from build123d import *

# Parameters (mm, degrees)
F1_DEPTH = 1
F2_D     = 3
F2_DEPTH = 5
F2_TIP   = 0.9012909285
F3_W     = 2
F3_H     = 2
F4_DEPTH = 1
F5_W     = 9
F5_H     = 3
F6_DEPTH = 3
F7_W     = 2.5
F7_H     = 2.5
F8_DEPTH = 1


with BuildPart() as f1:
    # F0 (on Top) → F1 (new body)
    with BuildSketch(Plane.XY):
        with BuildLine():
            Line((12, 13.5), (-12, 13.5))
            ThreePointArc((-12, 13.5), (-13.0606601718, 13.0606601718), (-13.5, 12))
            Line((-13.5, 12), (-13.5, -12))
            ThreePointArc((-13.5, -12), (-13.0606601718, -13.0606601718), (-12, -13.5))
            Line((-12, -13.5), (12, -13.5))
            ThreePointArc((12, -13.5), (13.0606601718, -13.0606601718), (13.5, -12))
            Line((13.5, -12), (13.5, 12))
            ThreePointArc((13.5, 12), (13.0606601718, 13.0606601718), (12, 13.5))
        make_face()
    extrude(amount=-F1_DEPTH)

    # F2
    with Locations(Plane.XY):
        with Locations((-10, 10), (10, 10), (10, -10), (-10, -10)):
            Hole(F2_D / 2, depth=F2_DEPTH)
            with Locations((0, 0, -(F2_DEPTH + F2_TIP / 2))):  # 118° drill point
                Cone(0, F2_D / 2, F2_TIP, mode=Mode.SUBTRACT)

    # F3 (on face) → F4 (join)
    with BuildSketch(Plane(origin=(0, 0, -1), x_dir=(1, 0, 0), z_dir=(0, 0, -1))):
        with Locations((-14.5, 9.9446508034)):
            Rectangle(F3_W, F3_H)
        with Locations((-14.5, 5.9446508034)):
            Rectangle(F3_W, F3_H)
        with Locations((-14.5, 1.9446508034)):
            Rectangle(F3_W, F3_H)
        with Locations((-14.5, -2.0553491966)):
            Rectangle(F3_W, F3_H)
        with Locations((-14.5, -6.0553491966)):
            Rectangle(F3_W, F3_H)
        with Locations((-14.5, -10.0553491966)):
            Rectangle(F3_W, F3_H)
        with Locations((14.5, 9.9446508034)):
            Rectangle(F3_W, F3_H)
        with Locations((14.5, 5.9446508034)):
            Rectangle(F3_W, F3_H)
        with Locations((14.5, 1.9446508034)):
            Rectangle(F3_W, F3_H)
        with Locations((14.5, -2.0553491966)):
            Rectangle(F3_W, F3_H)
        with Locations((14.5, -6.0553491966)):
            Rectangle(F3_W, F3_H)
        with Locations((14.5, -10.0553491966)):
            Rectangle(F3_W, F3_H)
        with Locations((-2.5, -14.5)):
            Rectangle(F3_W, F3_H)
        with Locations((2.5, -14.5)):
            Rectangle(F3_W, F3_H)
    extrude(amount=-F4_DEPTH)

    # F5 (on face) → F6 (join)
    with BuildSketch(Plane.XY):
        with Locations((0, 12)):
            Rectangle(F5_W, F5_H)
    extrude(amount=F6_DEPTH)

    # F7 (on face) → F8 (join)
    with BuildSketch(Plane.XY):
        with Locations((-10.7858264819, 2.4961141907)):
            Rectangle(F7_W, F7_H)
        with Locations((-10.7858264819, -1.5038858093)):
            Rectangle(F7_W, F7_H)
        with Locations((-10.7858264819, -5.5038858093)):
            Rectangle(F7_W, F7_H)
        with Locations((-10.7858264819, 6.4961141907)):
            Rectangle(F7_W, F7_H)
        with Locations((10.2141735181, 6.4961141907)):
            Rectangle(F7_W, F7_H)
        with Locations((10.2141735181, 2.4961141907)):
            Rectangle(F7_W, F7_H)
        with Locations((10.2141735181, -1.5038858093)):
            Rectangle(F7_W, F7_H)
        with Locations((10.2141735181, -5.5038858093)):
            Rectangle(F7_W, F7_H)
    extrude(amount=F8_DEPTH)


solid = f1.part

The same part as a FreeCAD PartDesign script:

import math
import FreeCAD as App
import Part
import Sketcher

V = App.Vector

doc = App.newDocument("Part")
body = doc.addObject("PartDesign::Body", "Body")

# Sketch on XY plane
sketch1 = body.newObject("Sketcher::SketchObject", "Sketch")
sketch1.AttachmentSupport = (doc.getObject("XY_Plane"), [""])
sketch1.MapMode = "FlatFace"
sketch1.addGeometry(Part.LineSegment(V(12, 13.5, 0), V(-12, 13.5, 0)), False)
sketch1.addGeometry(Part.ArcOfCircle(Part.Circle(V(-12, 12, 0), V(0, 0, 1), 1.5), math.radians(90), math.radians(180)), False)
sketch1.addGeometry(Part.LineSegment(V(-13.5, 12, 0), V(-13.5, -12, 0)), False)
sketch1.addGeometry(Part.ArcOfCircle(Part.Circle(V(-12, -12, 0), V(0, 0, 1), 1.5), math.radians(180), math.radians(270)), False)
sketch1.addGeometry(Part.LineSegment(V(-12, -13.5, 0), V(12, -13.5, 0)), False)
sketch1.addGeometry(Part.ArcOfCircle(Part.Circle(V(12, -12, 0), V(0, 0, 1), 1.5), math.radians(-90), math.radians(0)), False)
sketch1.addGeometry(Part.LineSegment(V(13.5, -12, 0), V(13.5, 12, 0)), False)
sketch1.addGeometry(Part.ArcOfCircle(Part.Circle(V(12, 12, 0), V(0, 0, 1), 1.5), math.radians(0), math.radians(90)), False)
sketch1.addConstraint(Sketcher.Constraint("Tangent", 0, 2, 1, 1))
sketch1.addConstraint(Sketcher.Constraint("Tangent", 1, 2, 2, 1))
sketch1.addConstraint(Sketcher.Constraint("Tangent", 2, 2, 3, 1))
sketch1.addConstraint(Sketcher.Constraint("Tangent", 3, 2, 4, 1))
sketch1.addConstraint(Sketcher.Constraint("Tangent", 4, 2, 5, 1))
sketch1.addConstraint(Sketcher.Constraint("Tangent", 5, 2, 6, 1))
sketch1.addConstraint(Sketcher.Constraint("Tangent", 6, 2, 7, 1))
sketch1.addConstraint(Sketcher.Constraint("Tangent", 7, 2, 0, 1))
sketch1.addConstraint(Sketcher.Constraint("Horizontal", 0))
sketch1.addConstraint(Sketcher.Constraint("Vertical", 2))
sketch1.addConstraint(Sketcher.Constraint("Horizontal", 4))
sketch1.addConstraint(Sketcher.Constraint("Vertical", 6))
sketch1.addConstraint(Sketcher.Constraint("Equal", 1, 3))
sketch1.addConstraint(Sketcher.Constraint("Equal", 3, 5))
sketch1.addConstraint(Sketcher.Constraint("Equal", 5, 7))
sketch1.addConstraint(Sketcher.Constraint("Symmetric", 1, 3, 5, 3, -1, 1))
sketch1.addConstraint(Sketcher.Constraint("Equal", 4, 2))
sketch1.addConstraint(Sketcher.Constraint("Radius", 1, 1.5))
sketch1.addConstraint(Sketcher.Constraint("DistanceX", 0, 2, 0, 1, 24.0))
pad1 = body.newObject("PartDesign::Pad", "Pad")
pad1.Profile = sketch1
pad1.Length = 1
pad1.Reversed = True

# Sketch on XY plane
sketch2 = body.newObject("Sketcher::SketchObject", "Sketch001")
sketch2.AttachmentSupport = (doc.getObject("XY_Plane"), [""])
sketch2.MapMode = "FlatFace"
sketch2.addGeometry(Part.Circle(V(-10, 10, 0), V(0, 0, 1), 1.5), False)
sketch2.addGeometry(Part.Circle(V(10, 10, 0), V(0, 0, 1), 1.5), False)
sketch2.addGeometry(Part.Circle(V(10, -10, 0), V(0, 0, 1), 1.5), False)
sketch2.addGeometry(Part.Circle(V(-10, -10, 0), V(0, 0, 1), 1.5), False)
sketch2.addConstraint(Sketcher.Constraint("Equal", 0, 1))
sketch2.addConstraint(Sketcher.Constraint("Equal", 1, 2))
sketch2.addConstraint(Sketcher.Constraint("Equal", 2, 3))
sketch2.addConstraint(Sketcher.Constraint("Symmetric", 0, 3, 2, 3, -1, 1))
sketch2.addConstraint(Sketcher.Constraint("Symmetric", 1, 3, 3, 3, -1, 1))
sketch2.addConstraint(Sketcher.Constraint("Symmetric", 0, 3, 1, 3, -2))
sketch2.addConstraint(Sketcher.Constraint("Diameter", 0, 3.0))
sketch2.addConstraint(Sketcher.Constraint("DistanceX", 0, 3, -1, 1, 10.0))
sketch2.addConstraint(Sketcher.Constraint("DistanceY", -1, 1, 0, 3, 10.0))
doc.recompute()
hole = body.newObject("PartDesign::Hole", "Hole")
hole.Profile = sketch2
hole.ThreadType = "None"
hole.Diameter = 3
hole.DepthType = "Dimension"
hole.Depth = 5
hole.DrillPoint = "Angled"
hole.DrillPointAngle = 118

# Sketch on XY plane
sketch3 = body.newObject("Sketcher::SketchObject", "Sketch002")
sketch3.AttachmentSupport = (doc.getObject("XY_Plane"), [""])
sketch3.MapMode = "FlatFace"
sketch3.AttachmentOffset = App.Placement(V(0, 0, -1), App.Rotation())
sketch3.addGeometry(Part.LineSegment(V(-15.5, -10.9, 0), V(-15.5, -8.9, 0)), False)
sketch3.addGeometry(Part.LineSegment(V(-15.5, -8.9, 0), V(-13.5, -8.9, 0)), False)
sketch3.addGeometry(Part.LineSegment(V(-13.5, -8.9, 0), V(-13.5, -10.9, 0)), False)
sketch3.addGeometry(Part.LineSegment(V(-13.5, -10.9, 0), V(-15.5, -10.9, 0)), False)
sketch3.addGeometry(Part.LineSegment(V(-15.5, -6.9, 0), V(-15.5, -4.9, 0)), False)
sketch3.addGeometry(Part.LineSegment(V(-15.5, -4.9, 0), V(-13.5, -4.9, 0)), False)
sketch3.addGeometry(Part.LineSegment(V(-13.5, -4.9, 0), V(-13.5, -6.9, 0)), False)
sketch3.addGeometry(Part.LineSegment(V(-13.5, -6.9, 0), V(-15.5, -6.9, 0)), False)
sketch3.addGeometry(Part.LineSegment(V(-15.5, -2.9, 0), V(-15.5, -0.9, 0)), False)
sketch3.addGeometry(Part.LineSegment(V(-15.5, -0.9, 0), V(-13.5, -0.9, 0)), False)
sketch3.addGeometry(Part.LineSegment(V(-13.5, -0.9, 0), V(-13.5, -2.9, 0)), False)
sketch3.addGeometry(Part.LineSegment(V(-13.5, -2.9, 0), V(-15.5, -2.9, 0)), False)
sketch3.addGeometry(Part.LineSegment(V(-15.5, 1.1, 0), V(-15.5, 3.1, 0)), False)
sketch3.addGeometry(Part.LineSegment(V(-15.5, 3.1, 0), V(-13.5, 3.1, 0)), False)
sketch3.addGeometry(Part.LineSegment(V(-13.5, 3.1, 0), V(-13.5, 1.1, 0)), False)
sketch3.addGeometry(Part.LineSegment(V(-13.5, 1.1, 0), V(-15.5, 1.1, 0)), False)
sketch3.addGeometry(Part.LineSegment(V(-15.5, 5.1, 0), V(-15.5, 7.1, 0)), False)
sketch3.addGeometry(Part.LineSegment(V(-15.5, 7.1, 0), V(-13.5, 7.1, 0)), False)
sketch3.addGeometry(Part.LineSegment(V(-13.5, 7.1, 0), V(-13.5, 5.1, 0)), False)
sketch3.addGeometry(Part.LineSegment(V(-13.5, 5.1, 0), V(-15.5, 5.1, 0)), False)
sketch3.addGeometry(Part.LineSegment(V(-15.5, 9.1, 0), V(-15.5, 11.1, 0)), False)
sketch3.addGeometry(Part.LineSegment(V(-15.5, 11.1, 0), V(-13.5, 11.1, 0)), False)
sketch3.addGeometry(Part.LineSegment(V(-13.5, 11.1, 0), V(-13.5, 9.1, 0)), False)
sketch3.addGeometry(Part.LineSegment(V(-13.5, 9.1, 0), V(-15.5, 9.1, 0)), False)
sketch3.addGeometry(Part.LineSegment(V(13.5, -10.9, 0), V(13.5, -8.9, 0)), False)
sketch3.addGeometry(Part.LineSegment(V(13.5, -8.9, 0), V(15.5, -8.9, 0)), False)
sketch3.addGeometry(Part.LineSegment(V(15.5, -8.9, 0), V(15.5, -10.9, 0)), False)
sketch3.addGeometry(Part.LineSegment(V(15.5, -10.9, 0), V(13.5, -10.9, 0)), False)
sketch3.addGeometry(Part.LineSegment(V(13.5, -6.9, 0), V(13.5, -4.9, 0)), False)
sketch3.addGeometry(Part.LineSegment(V(13.5, -4.9, 0), V(15.5, -4.9, 0)), False)
sketch3.addGeometry(Part.LineSegment(V(15.5, -4.9, 0), V(15.5, -6.9, 0)), False)
sketch3.addGeometry(Part.LineSegment(V(15.5, -6.9, 0), V(13.5, -6.9, 0)), False)
sketch3.addGeometry(Part.LineSegment(V(13.5, -2.9, 0), V(13.5, -0.9, 0)), False)
sketch3.addGeometry(Part.LineSegment(V(13.5, -0.9, 0), V(15.5, -0.9, 0)), False)
sketch3.addGeometry(Part.LineSegment(V(15.5, -0.9, 0), V(15.5, -2.9, 0)), False)
sketch3.addGeometry(Part.LineSegment(V(15.5, -2.9, 0), V(13.5, -2.9, 0)), False)
sketch3.addGeometry(Part.LineSegment(V(13.5, 1.1, 0), V(13.5, 3.1, 0)), False)
sketch3.addGeometry(Part.LineSegment(V(13.5, 3.1, 0), V(15.5, 3.1, 0)), False)
sketch3.addGeometry(Part.LineSegment(V(15.5, 3.1, 0), V(15.5, 1.1, 0)), False)
sketch3.addGeometry(Part.LineSegment(V(15.5, 1.1, 0), V(13.5, 1.1, 0)), False)
sketch3.addGeometry(Part.LineSegment(V(13.5, 5.1, 0), V(13.5, 7.1, 0)), False)
sketch3.addGeometry(Part.LineSegment(V(13.5, 7.1, 0), V(15.5, 7.1, 0)), False)
sketch3.addGeometry(Part.LineSegment(V(15.5, 7.1, 0), V(15.5, 5.1, 0)), False)
sketch3.addGeometry(Part.LineSegment(V(15.5, 5.1, 0), V(13.5, 5.1, 0)), False)
sketch3.addGeometry(Part.LineSegment(V(13.5, 9.1, 0), V(13.5, 11.1, 0)), False)
sketch3.addGeometry(Part.LineSegment(V(13.5, 11.1, 0), V(15.5, 11.1, 0)), False)
sketch3.addGeometry(Part.LineSegment(V(15.5, 11.1, 0), V(15.5, 9.1, 0)), False)
sketch3.addGeometry(Part.LineSegment(V(15.5, 9.1, 0), V(13.5, 9.1, 0)), False)
sketch3.addGeometry(Part.LineSegment(V(-3.5, 13.5, 0), V(-3.5, 15.5, 0)), False)
sketch3.addGeometry(Part.LineSegment(V(-3.5, 15.5, 0), V(-1.5, 15.5, 0)), False)
sketch3.addGeometry(Part.LineSegment(V(-1.5, 15.5, 0), V(-1.5, 13.5, 0)), False)
sketch3.addGeometry(Part.LineSegment(V(-1.5, 13.5, 0), V(-3.5, 13.5, 0)), False)
sketch3.addGeometry(Part.LineSegment(V(1.5, 13.5, 0), V(1.5, 15.5, 0)), False)
sketch3.addGeometry(Part.LineSegment(V(1.5, 15.5, 0), V(3.5, 15.5, 0)), False)
sketch3.addGeometry(Part.LineSegment(V(3.5, 15.5, 0), V(3.5, 13.5, 0)), False)
sketch3.addGeometry(Part.LineSegment(V(3.5, 13.5, 0), V(1.5, 13.5, 0)), False)
sketch3.addConstraint(Sketcher.Constraint("Coincident", 0, 2, 1, 1))
sketch3.addConstraint(Sketcher.Constraint("Coincident", 1, 2, 2, 1))
sketch3.addConstraint(Sketcher.Constraint("Coincident", 2, 2, 3, 1))
sketch3.addConstraint(Sketcher.Constraint("Coincident", 3, 2, 0, 1))
sketch3.addConstraint(Sketcher.Constraint("Coincident", 4, 2, 5, 1))
sketch3.addConstraint(Sketcher.Constraint("Coincident", 5, 2, 6, 1))
sketch3.addConstraint(Sketcher.Constraint("Coincident", 6, 2, 7, 1))
sketch3.addConstraint(Sketcher.Constraint("Coincident", 7, 2, 4, 1))
sketch3.addConstraint(Sketcher.Constraint("Coincident", 8, 2, 9, 1))
sketch3.addConstraint(Sketcher.Constraint("Coincident", 9, 2, 10, 1))
sketch3.addConstraint(Sketcher.Constraint("Coincident", 10, 2, 11, 1))
sketch3.addConstraint(Sketcher.Constraint("Coincident", 11, 2, 8, 1))
sketch3.addConstraint(Sketcher.Constraint("Coincident", 12, 2, 13, 1))
sketch3.addConstraint(Sketcher.Constraint("Coincident", 13, 2, 14, 1))
sketch3.addConstraint(Sketcher.Constraint("Coincident", 14, 2, 15, 1))
sketch3.addConstraint(Sketcher.Constraint("Coincident", 15, 2, 12, 1))
sketch3.addConstraint(Sketcher.Constraint("Coincident", 16, 2, 17, 1))
sketch3.addConstraint(Sketcher.Constraint("Coincident", 17, 2, 18, 1))
sketch3.addConstraint(Sketcher.Constraint("Coincident", 18, 2, 19, 1))
sketch3.addConstraint(Sketcher.Constraint("Coincident", 19, 2, 16, 1))
sketch3.addConstraint(Sketcher.Constraint("Coincident", 20, 2, 21, 1))
sketch3.addConstraint(Sketcher.Constraint("Coincident", 21, 2, 22, 1))
sketch3.addConstraint(Sketcher.Constraint("Coincident", 22, 2, 23, 1))
sketch3.addConstraint(Sketcher.Constraint("Coincident", 23, 2, 20, 1))
sketch3.addConstraint(Sketcher.Constraint("Coincident", 24, 2, 25, 1))
sketch3.addConstraint(Sketcher.Constraint("Coincident", 25, 2, 26, 1))
sketch3.addConstraint(Sketcher.Constraint("Coincident", 26, 2, 27, 1))
sketch3.addConstraint(Sketcher.Constraint("Coincident", 27, 2, 24, 1))
sketch3.addConstraint(Sketcher.Constraint("Coincident", 28, 2, 29, 1))
sketch3.addConstraint(Sketcher.Constraint("Coincident", 29, 2, 30, 1))
sketch3.addConstraint(Sketcher.Constraint("Coincident", 30, 2, 31, 1))
sketch3.addConstraint(Sketcher.Constraint("Coincident", 31, 2, 28, 1))
sketch3.addConstraint(Sketcher.Constraint("Coincident", 32, 2, 33, 1))
sketch3.addConstraint(Sketcher.Constraint("Coincident", 33, 2, 34, 1))
sketch3.addConstraint(Sketcher.Constraint("Coincident", 34, 2, 35, 1))
sketch3.addConstraint(Sketcher.Constraint("Coincident", 35, 2, 32, 1))
sketch3.addConstraint(Sketcher.Constraint("Coincident", 36, 2, 37, 1))
sketch3.addConstraint(Sketcher.Constraint("Coincident", 37, 2, 38, 1))
sketch3.addConstraint(Sketcher.Constraint("Coincident", 38, 2, 39, 1))
sketch3.addConstraint(Sketcher.Constraint("Coincident", 39, 2, 36, 1))
sketch3.addConstraint(Sketcher.Constraint("Coincident", 40, 2, 41, 1))
sketch3.addConstraint(Sketcher.Constraint("Coincident", 41, 2, 42, 1))
sketch3.addConstraint(Sketcher.Constraint("Coincident", 42, 2, 43, 1))
sketch3.addConstraint(Sketcher.Constraint("Coincident", 43, 2, 40, 1))
sketch3.addConstraint(Sketcher.Constraint("Coincident", 44, 2, 45, 1))
sketch3.addConstraint(Sketcher.Constraint("Coincident", 45, 2, 46, 1))
sketch3.addConstraint(Sketcher.Constraint("Coincident", 46, 2, 47, 1))
sketch3.addConstraint(Sketcher.Constraint("Coincident", 47, 2, 44, 1))
sketch3.addConstraint(Sketcher.Constraint("Coincident", 48, 2, 49, 1))
sketch3.addConstraint(Sketcher.Constraint("Coincident", 49, 2, 50, 1))
sketch3.addConstraint(Sketcher.Constraint("Coincident", 50, 2, 51, 1))
sketch3.addConstraint(Sketcher.Constraint("Coincident", 51, 2, 48, 1))
sketch3.addConstraint(Sketcher.Constraint("Coincident", 52, 2, 53, 1))
sketch3.addConstraint(Sketcher.Constraint("Coincident", 53, 2, 54, 1))
sketch3.addConstraint(Sketcher.Constraint("Coincident", 54, 2, 55, 1))
sketch3.addConstraint(Sketcher.Constraint("Coincident", 55, 2, 52, 1))
sketch3.addConstraint(Sketcher.Constraint("Vertical", 0))
sketch3.addConstraint(Sketcher.Constraint("Horizontal", 1))
sketch3.addConstraint(Sketcher.Constraint("Vertical", 2))
sketch3.addConstraint(Sketcher.Constraint("Horizontal", 3))
sketch3.addConstraint(Sketcher.Constraint("Vertical", 4))
sketch3.addConstraint(Sketcher.Constraint("Horizontal", 5))
sketch3.addConstraint(Sketcher.Constraint("Vertical", 6))
sketch3.addConstraint(Sketcher.Constraint("Horizontal", 7))
sketch3.addConstraint(Sketcher.Constraint("Vertical", 8))
sketch3.addConstraint(Sketcher.Constraint("Horizontal", 9))
sketch3.addConstraint(Sketcher.Constraint("Vertical", 10))
sketch3.addConstraint(Sketcher.Constraint("Horizontal", 11))
sketch3.addConstraint(Sketcher.Constraint("Vertical", 12))
sketch3.addConstraint(Sketcher.Constraint("Horizontal", 13))
sketch3.addConstraint(Sketcher.Constraint("Vertical", 14))
sketch3.addConstraint(Sketcher.Constraint("Horizontal", 15))
sketch3.addConstraint(Sketcher.Constraint("Vertical", 16))
sketch3.addConstraint(Sketcher.Constraint("Horizontal", 17))
sketch3.addConstraint(Sketcher.Constraint("Vertical", 18))
sketch3.addConstraint(Sketcher.Constraint("Horizontal", 19))
sketch3.addConstraint(Sketcher.Constraint("Vertical", 20))
sketch3.addConstraint(Sketcher.Constraint("Horizontal", 21))
sketch3.addConstraint(Sketcher.Constraint("Vertical", 22))
sketch3.addConstraint(Sketcher.Constraint("Horizontal", 23))
sketch3.addConstraint(Sketcher.Constraint("Vertical", 24))
sketch3.addConstraint(Sketcher.Constraint("Horizontal", 25))
sketch3.addConstraint(Sketcher.Constraint("Vertical", 26))
sketch3.addConstraint(Sketcher.Constraint("Horizontal", 27))
sketch3.addConstraint(Sketcher.Constraint("Vertical", 28))
sketch3.addConstraint(Sketcher.Constraint("Horizontal", 29))
sketch3.addConstraint(Sketcher.Constraint("Vertical", 30))
sketch3.addConstraint(Sketcher.Constraint("Horizontal", 31))
sketch3.addConstraint(Sketcher.Constraint("Vertical", 32))
sketch3.addConstraint(Sketcher.Constraint("Horizontal", 33))
sketch3.addConstraint(Sketcher.Constraint("Vertical", 34))
sketch3.addConstraint(Sketcher.Constraint("Horizontal", 35))
sketch3.addConstraint(Sketcher.Constraint("Vertical", 36))
sketch3.addConstraint(Sketcher.Constraint("Horizontal", 37))
sketch3.addConstraint(Sketcher.Constraint("Vertical", 38))
sketch3.addConstraint(Sketcher.Constraint("Horizontal", 39))
sketch3.addConstraint(Sketcher.Constraint("Vertical", 40))
sketch3.addConstraint(Sketcher.Constraint("Horizontal", 41))
sketch3.addConstraint(Sketcher.Constraint("Vertical", 42))
sketch3.addConstraint(Sketcher.Constraint("Horizontal", 43))
sketch3.addConstraint(Sketcher.Constraint("Vertical", 44))
sketch3.addConstraint(Sketcher.Constraint("Horizontal", 45))
sketch3.addConstraint(Sketcher.Constraint("Vertical", 46))
sketch3.addConstraint(Sketcher.Constraint("Horizontal", 47))
sketch3.addConstraint(Sketcher.Constraint("Vertical", 48))
sketch3.addConstraint(Sketcher.Constraint("Horizontal", 49))
sketch3.addConstraint(Sketcher.Constraint("Vertical", 50))
sketch3.addConstraint(Sketcher.Constraint("Horizontal", 51))
sketch3.addConstraint(Sketcher.Constraint("Vertical", 52))
sketch3.addConstraint(Sketcher.Constraint("Horizontal", 53))
sketch3.addConstraint(Sketcher.Constraint("Vertical", 54))
sketch3.addConstraint(Sketcher.Constraint("Horizontal", 55))
sketch3.addConstraint(Sketcher.Constraint("Symmetric", 1, 2, 24, 2, -2))
sketch3.addConstraint(Sketcher.Constraint("Symmetric", 3, 2, 26, 2, -2))
sketch3.addConstraint(Sketcher.Constraint("Symmetric", 5, 2, 28, 2, -2))
sketch3.addConstraint(Sketcher.Constraint("Symmetric", 7, 2, 30, 2, -2))
sketch3.addConstraint(Sketcher.Constraint("Symmetric", 9, 2, 32, 2, -2))
sketch3.addConstraint(Sketcher.Constraint("Symmetric", 11, 2, 34, 2, -2))
sketch3.addConstraint(Sketcher.Constraint("Symmetric", 13, 2, 36, 2, -2))
sketch3.addConstraint(Sketcher.Constraint("Symmetric", 15, 2, 38, 2, -2))
sketch3.addConstraint(Sketcher.Constraint("Symmetric", 17, 2, 40, 2, -2))
sketch3.addConstraint(Sketcher.Constraint("Symmetric", 19, 2, 42, 2, -2))
sketch3.addConstraint(Sketcher.Constraint("Symmetric", 21, 2, 44, 2, -2))
sketch3.addConstraint(Sketcher.Constraint("Symmetric", 23, 2, 46, 2, -2))
sketch3.addConstraint(Sketcher.Constraint("Symmetric", 49, 2, 52, 2, -2))
sketch3.addConstraint(Sketcher.Constraint("Symmetric", 51, 2, 54, 2, -2))
sketch3.addConstraint(Sketcher.Constraint("Vertical", 3, 2, 4, 2))
sketch3.addConstraint(Sketcher.Constraint("Vertical", 2, 2, 5, 2))
sketch3.addConstraint(Sketcher.Constraint("Vertical", 7, 2, 8, 2))
sketch3.addConstraint(Sketcher.Constraint("Vertical", 6, 2, 9, 2))
sketch3.addConstraint(Sketcher.Constraint("Vertical", 11, 2, 12, 2))
sketch3.addConstraint(Sketcher.Constraint("Vertical", 10, 2, 13, 2))
sketch3.addConstraint(Sketcher.Constraint("Vertical", 15, 2, 16, 2))
sketch3.addConstraint(Sketcher.Constraint("Vertical", 14, 2, 17, 2))
sketch3.addConstraint(Sketcher.Constraint("Vertical", 19, 2, 20, 2))
sketch3.addConstraint(Sketcher.Constraint("Vertical", 18, 2, 21, 2))
sketch3.addConstraint(Sketcher.Constraint("Equal", 47, 49))
sketch3.addConstraint(Sketcher.Constraint("Equal", 55, 0))
sketch3.addConstraint(Sketcher.Constraint("Equal", 2, 4))
sketch3.addConstraint(Sketcher.Constraint("Equal", 6, 8))
sketch3.addConstraint(Sketcher.Constraint("Equal", 10, 12))
sketch3.addConstraint(Sketcher.Constraint("Equal", 14, 16))
sketch3.addConstraint(Sketcher.Constraint("Equal", 18, 20))
sketch3.addConstraint(Sketcher.Constraint("Equal", 46, 48))
sketch3.addConstraint(Sketcher.Constraint("DistanceX", 1, 1, 1, 2, 2.0))
sketch3.addConstraint(Sketcher.Constraint("DistanceY", 0, 2, 4, 2, 4.0))
sketch3.addConstraint(Sketcher.Constraint("DistanceY", 4, 2, 8, 2, 4.0))
sketch3.addConstraint(Sketcher.Constraint("DistanceY", 8, 2, 12, 2, 4.0))
sketch3.addConstraint(Sketcher.Constraint("DistanceY", 12, 2, 16, 2, 4.0))
sketch3.addConstraint(Sketcher.Constraint("DistanceY", 16, 2, 20, 2, 4.0))
sketch3.addConstraint(Sketcher.Constraint("DistanceX", 1, 2, 24, 2, 27.0))
sketch3.addConstraint(Sketcher.Constraint("DistanceX", 21, 2, 48, 2, 10.0))
sketch3.addConstraint(Sketcher.Constraint("DistanceY", -1, 1, 48, 2, 15.5))
sketch3.addConstraint(Sketcher.Constraint("DistanceY", 0, 2, -1, 1, 8.944651))
pad2 = body.newObject("PartDesign::Pad", "Pad001")
pad2.Profile = sketch3
pad2.Length = 1

# Sketch on XY plane
sketch4 = body.newObject("Sketcher::SketchObject", "Sketch003")
sketch4.AttachmentSupport = (doc.getObject("XY_Plane"), [""])
sketch4.MapMode = "FlatFace"
sketch4.addGeometry(Part.LineSegment(V(-4.5, 13.5, 0), V(-4.5, 10.5, 0)), False)
sketch4.addGeometry(Part.LineSegment(V(-4.5, 10.5, 0), V(4.5, 10.5, 0)), False)
sketch4.addGeometry(Part.LineSegment(V(4.5, 10.5, 0), V(4.5, 13.5, 0)), False)
sketch4.addGeometry(Part.LineSegment(V(4.5, 13.5, 0), V(-4.5, 13.5, 0)), False)
sketch4.addConstraint(Sketcher.Constraint("Coincident", 0, 2, 1, 1))
sketch4.addConstraint(Sketcher.Constraint("Coincident", 1, 2, 2, 1))
sketch4.addConstraint(Sketcher.Constraint("Coincident", 2, 2, 3, 1))
sketch4.addConstraint(Sketcher.Constraint("Coincident", 3, 2, 0, 1))
sketch4.addConstraint(Sketcher.Constraint("Vertical", 0))
sketch4.addConstraint(Sketcher.Constraint("Horizontal", 1))
sketch4.addConstraint(Sketcher.Constraint("Vertical", 2))
sketch4.addConstraint(Sketcher.Constraint("Horizontal", 3))
sketch4.addConstraint(Sketcher.Constraint("DistanceX", 1, 1, 1, 2, 9.0))
sketch4.addConstraint(Sketcher.Constraint("DistanceY", 0, 2, 0, 1, 3.0))
sketch4.addConstraint(Sketcher.Constraint("DistanceX", 0, 2, -1, 1, 4.5))
sketch4.addConstraint(Sketcher.Constraint("DistanceY", -1, 1, 0, 2, 10.5))
pad3 = body.newObject("PartDesign::Pad", "Pad002")
pad3.Profile = sketch4
pad3.Length = 3

# Sketch on XY plane
sketch5 = body.newObject("Sketcher::SketchObject", "Sketch004")
sketch5.AttachmentSupport = (doc.getObject("XY_Plane"), [""])
sketch5.MapMode = "FlatFace"
sketch5.addGeometry(Part.LineSegment(V(-12, 3.7, 0), V(-12, 1.2, 0)), False)
sketch5.addGeometry(Part.LineSegment(V(-12, 1.2, 0), V(-9.5, 1.2, 0)), False)
sketch5.addGeometry(Part.LineSegment(V(-9.5, 1.2, 0), V(-9.5, 3.7, 0)), False)
sketch5.addGeometry(Part.LineSegment(V(-9.5, 3.7, 0), V(-12, 3.7, 0)), False)
sketch5.addGeometry(Part.LineSegment(V(-12, -0.3, 0), V(-12, -2.8, 0)), False)
sketch5.addGeometry(Part.LineSegment(V(-12, -2.8, 0), V(-9.5, -2.8, 0)), False)
sketch5.addGeometry(Part.LineSegment(V(-9.5, -2.8, 0), V(-9.5, -0.3, 0)), False)
sketch5.addGeometry(Part.LineSegment(V(-9.5, -0.3, 0), V(-12, -0.3, 0)), False)
sketch5.addGeometry(Part.LineSegment(V(-12, -4.3, 0), V(-12, -6.8, 0)), False)
sketch5.addGeometry(Part.LineSegment(V(-12, -6.8, 0), V(-9.5, -6.8, 0)), False)
sketch5.addGeometry(Part.LineSegment(V(-9.5, -6.8, 0), V(-9.5, -4.3, 0)), False)
sketch5.addGeometry(Part.LineSegment(V(-9.5, -4.3, 0), V(-12, -4.3, 0)), False)
sketch5.addGeometry(Part.LineSegment(V(-12, 7.7, 0), V(-12, 5.2, 0)), False)
sketch5.addGeometry(Part.LineSegment(V(-12, 5.2, 0), V(-9.5, 5.2, 0)), False)
sketch5.addGeometry(Part.LineSegment(V(-9.5, 5.2, 0), V(-9.5, 7.7, 0)), False)
sketch5.addGeometry(Part.LineSegment(V(-9.5, 7.7, 0), V(-12, 7.7, 0)), False)
sketch5.addGeometry(Part.LineSegment(V(9, 7.7, 0), V(9, 5.2, 0)), False)
sketch5.addGeometry(Part.LineSegment(V(9, 5.2, 0), V(11.5, 5.2, 0)), False)
sketch5.addGeometry(Part.LineSegment(V(11.5, 5.2, 0), V(11.5, 7.7, 0)), False)
sketch5.addGeometry(Part.LineSegment(V(11.5, 7.7, 0), V(9, 7.7, 0)), False)
sketch5.addGeometry(Part.LineSegment(V(9, 3.7, 0), V(9, 1.2, 0)), False)
sketch5.addGeometry(Part.LineSegment(V(9, 1.2, 0), V(11.5, 1.2, 0)), False)
sketch5.addGeometry(Part.LineSegment(V(11.5, 1.2, 0), V(11.5, 3.7, 0)), False)
sketch5.addGeometry(Part.LineSegment(V(11.5, 3.7, 0), V(9, 3.7, 0)), False)
sketch5.addGeometry(Part.LineSegment(V(9, -0.3, 0), V(9, -2.8, 0)), False)
sketch5.addGeometry(Part.LineSegment(V(9, -2.8, 0), V(11.5, -2.8, 0)), False)
sketch5.addGeometry(Part.LineSegment(V(11.5, -2.8, 0), V(11.5, -0.3, 0)), False)
sketch5.addGeometry(Part.LineSegment(V(11.5, -0.3, 0), V(9, -0.3, 0)), False)
sketch5.addGeometry(Part.LineSegment(V(9, -4.3, 0), V(9, -6.8, 0)), False)
sketch5.addGeometry(Part.LineSegment(V(9, -6.8, 0), V(11.5, -6.8, 0)), False)
sketch5.addGeometry(Part.LineSegment(V(11.5, -6.8, 0), V(11.5, -4.3, 0)), False)
sketch5.addGeometry(Part.LineSegment(V(11.5, -4.3, 0), V(9, -4.3, 0)), False)
sketch5.addConstraint(Sketcher.Constraint("Coincident", 0, 2, 1, 1))
sketch5.addConstraint(Sketcher.Constraint("Coincident", 1, 2, 2, 1))
sketch5.addConstraint(Sketcher.Constraint("Coincident", 2, 2, 3, 1))
sketch5.addConstraint(Sketcher.Constraint("Coincident", 3, 2, 0, 1))
sketch5.addConstraint(Sketcher.Constraint("Coincident", 4, 2, 5, 1))
sketch5.addConstraint(Sketcher.Constraint("Coincident", 5, 2, 6, 1))
sketch5.addConstraint(Sketcher.Constraint("Coincident", 6, 2, 7, 1))
sketch5.addConstraint(Sketcher.Constraint("Coincident", 7, 2, 4, 1))
sketch5.addConstraint(Sketcher.Constraint("Coincident", 8, 2, 9, 1))
sketch5.addConstraint(Sketcher.Constraint("Coincident", 9, 2, 10, 1))
sketch5.addConstraint(Sketcher.Constraint("Coincident", 10, 2, 11, 1))
sketch5.addConstraint(Sketcher.Constraint("Coincident", 11, 2, 8, 1))
sketch5.addConstraint(Sketcher.Constraint("Coincident", 12, 2, 13, 1))
sketch5.addConstraint(Sketcher.Constraint("Coincident", 13, 2, 14, 1))
sketch5.addConstraint(Sketcher.Constraint("Coincident", 14, 2, 15, 1))
sketch5.addConstraint(Sketcher.Constraint("Coincident", 15, 2, 12, 1))
sketch5.addConstraint(Sketcher.Constraint("Coincident", 16, 2, 17, 1))
sketch5.addConstraint(Sketcher.Constraint("Coincident", 17, 2, 18, 1))
sketch5.addConstraint(Sketcher.Constraint("Coincident", 18, 2, 19, 1))
sketch5.addConstraint(Sketcher.Constraint("Coincident", 19, 2, 16, 1))
sketch5.addConstraint(Sketcher.Constraint("Coincident", 20, 2, 21, 1))
sketch5.addConstraint(Sketcher.Constraint("Coincident", 21, 2, 22, 1))
sketch5.addConstraint(Sketcher.Constraint("Coincident", 22, 2, 23, 1))
sketch5.addConstraint(Sketcher.Constraint("Coincident", 23, 2, 20, 1))
sketch5.addConstraint(Sketcher.Constraint("Coincident", 24, 2, 25, 1))
sketch5.addConstraint(Sketcher.Constraint("Coincident", 25, 2, 26, 1))
sketch5.addConstraint(Sketcher.Constraint("Coincident", 26, 2, 27, 1))
sketch5.addConstraint(Sketcher.Constraint("Coincident", 27, 2, 24, 1))
sketch5.addConstraint(Sketcher.Constraint("Coincident", 28, 2, 29, 1))
sketch5.addConstraint(Sketcher.Constraint("Coincident", 29, 2, 30, 1))
sketch5.addConstraint(Sketcher.Constraint("Coincident", 30, 2, 31, 1))
sketch5.addConstraint(Sketcher.Constraint("Coincident", 31, 2, 28, 1))
sketch5.addConstraint(Sketcher.Constraint("Vertical", 0))
sketch5.addConstraint(Sketcher.Constraint("Horizontal", 1))
sketch5.addConstraint(Sketcher.Constraint("Vertical", 2))
sketch5.addConstraint(Sketcher.Constraint("Horizontal", 3))
sketch5.addConstraint(Sketcher.Constraint("Vertical", 4))
sketch5.addConstraint(Sketcher.Constraint("Horizontal", 5))
sketch5.addConstraint(Sketcher.Constraint("Vertical", 6))
sketch5.addConstraint(Sketcher.Constraint("Horizontal", 7))
sketch5.addConstraint(Sketcher.Constraint("Vertical", 8))
sketch5.addConstraint(Sketcher.Constraint("Horizontal", 9))
sketch5.addConstraint(Sketcher.Constraint("Vertical", 10))
sketch5.addConstraint(Sketcher.Constraint("Horizontal", 11))
sketch5.addConstraint(Sketcher.Constraint("Vertical", 12))
sketch5.addConstraint(Sketcher.Constraint("Horizontal", 13))
sketch5.addConstraint(Sketcher.Constraint("Vertical", 14))
sketch5.addConstraint(Sketcher.Constraint("Horizontal", 15))
sketch5.addConstraint(Sketcher.Constraint("Vertical", 16))
sketch5.addConstraint(Sketcher.Constraint("Horizontal", 17))
sketch5.addConstraint(Sketcher.Constraint("Vertical", 18))
sketch5.addConstraint(Sketcher.Constraint("Horizontal", 19))
sketch5.addConstraint(Sketcher.Constraint("Vertical", 20))
sketch5.addConstraint(Sketcher.Constraint("Horizontal", 21))
sketch5.addConstraint(Sketcher.Constraint("Vertical", 22))
sketch5.addConstraint(Sketcher.Constraint("Horizontal", 23))
sketch5.addConstraint(Sketcher.Constraint("Vertical", 24))
sketch5.addConstraint(Sketcher.Constraint("Horizontal", 25))
sketch5.addConstraint(Sketcher.Constraint("Vertical", 26))
sketch5.addConstraint(Sketcher.Constraint("Horizontal", 27))
sketch5.addConstraint(Sketcher.Constraint("Vertical", 28))
sketch5.addConstraint(Sketcher.Constraint("Horizontal", 29))
sketch5.addConstraint(Sketcher.Constraint("Vertical", 30))
sketch5.addConstraint(Sketcher.Constraint("Horizontal", 31))
sketch5.addConstraint(Sketcher.Constraint("Horizontal", 13, 2, 16, 2))
sketch5.addConstraint(Sketcher.Constraint("Horizontal", 15, 2, 18, 2))
sketch5.addConstraint(Sketcher.Constraint("Horizontal", 1, 2, 20, 2))
sketch5.addConstraint(Sketcher.Constraint("Horizontal", 3, 2, 22, 2))
sketch5.addConstraint(Sketcher.Constraint("Horizontal", 5, 2, 24, 2))
sketch5.addConstraint(Sketcher.Constraint("Horizontal", 7, 2, 26, 2))
sketch5.addConstraint(Sketcher.Constraint("Horizontal", 9, 2, 28, 2))
sketch5.addConstraint(Sketcher.Constraint("Horizontal", 11, 2, 30, 2))
sketch5.addConstraint(Sketcher.Constraint("Vertical", 3, 2, 4, 2))
sketch5.addConstraint(Sketcher.Constraint("Vertical", 2, 2, 5, 2))
sketch5.addConstraint(Sketcher.Constraint("Vertical", 7, 2, 8, 2))
sketch5.addConstraint(Sketcher.Constraint("Vertical", 6, 2, 9, 2))
sketch5.addConstraint(Sketcher.Constraint("Vertical", 11, 2, 12, 2))
sketch5.addConstraint(Sketcher.Constraint("Vertical", 10, 2, 13, 2))
sketch5.addConstraint(Sketcher.Constraint("Vertical", 19, 2, 20, 2))
sketch5.addConstraint(Sketcher.Constraint("Vertical", 18, 2, 21, 2))
sketch5.addConstraint(Sketcher.Constraint("Vertical", 23, 2, 24, 2))
sketch5.addConstraint(Sketcher.Constraint("Vertical", 22, 2, 25, 2))
sketch5.addConstraint(Sketcher.Constraint("Vertical", 27, 2, 28, 2))
sketch5.addConstraint(Sketcher.Constraint("Vertical", 26, 2, 29, 2))
sketch5.addConstraint(Sketcher.Constraint("Equal", 15, 17))
sketch5.addConstraint(Sketcher.Constraint("Equal", 31, 0))
sketch5.addConstraint(Sketcher.Constraint("Equal", 2, 4))
sketch5.addConstraint(Sketcher.Constraint("Equal", 6, 8))
sketch5.addConstraint(Sketcher.Constraint("Equal", 10, 12))
sketch5.addConstraint(Sketcher.Constraint("DistanceX", 1, 1, 1, 2, 2.5))
sketch5.addConstraint(Sketcher.Constraint("DistanceY", 4, 2, 0, 2, 4.0))
sketch5.addConstraint(Sketcher.Constraint("DistanceY", 8, 2, 4, 2, 4.0))
sketch5.addConstraint(Sketcher.Constraint("DistanceY", 0, 2, 12, 2, 4.0))
sketch5.addConstraint(Sketcher.Constraint("DistanceX", 13, 2, 17, 2, 21.0))
sketch5.addConstraint(Sketcher.Constraint("DistanceX", 0, 2, -1, 1, 12.035826))
sketch5.addConstraint(Sketcher.Constraint("DistanceY", -1, 1, 0, 2, 1.246114))
pad4 = body.newObject("PartDesign::Pad", "Pad003")
pad4.Profile = sketch5
pad4.Length = 1

doc.recompute()
